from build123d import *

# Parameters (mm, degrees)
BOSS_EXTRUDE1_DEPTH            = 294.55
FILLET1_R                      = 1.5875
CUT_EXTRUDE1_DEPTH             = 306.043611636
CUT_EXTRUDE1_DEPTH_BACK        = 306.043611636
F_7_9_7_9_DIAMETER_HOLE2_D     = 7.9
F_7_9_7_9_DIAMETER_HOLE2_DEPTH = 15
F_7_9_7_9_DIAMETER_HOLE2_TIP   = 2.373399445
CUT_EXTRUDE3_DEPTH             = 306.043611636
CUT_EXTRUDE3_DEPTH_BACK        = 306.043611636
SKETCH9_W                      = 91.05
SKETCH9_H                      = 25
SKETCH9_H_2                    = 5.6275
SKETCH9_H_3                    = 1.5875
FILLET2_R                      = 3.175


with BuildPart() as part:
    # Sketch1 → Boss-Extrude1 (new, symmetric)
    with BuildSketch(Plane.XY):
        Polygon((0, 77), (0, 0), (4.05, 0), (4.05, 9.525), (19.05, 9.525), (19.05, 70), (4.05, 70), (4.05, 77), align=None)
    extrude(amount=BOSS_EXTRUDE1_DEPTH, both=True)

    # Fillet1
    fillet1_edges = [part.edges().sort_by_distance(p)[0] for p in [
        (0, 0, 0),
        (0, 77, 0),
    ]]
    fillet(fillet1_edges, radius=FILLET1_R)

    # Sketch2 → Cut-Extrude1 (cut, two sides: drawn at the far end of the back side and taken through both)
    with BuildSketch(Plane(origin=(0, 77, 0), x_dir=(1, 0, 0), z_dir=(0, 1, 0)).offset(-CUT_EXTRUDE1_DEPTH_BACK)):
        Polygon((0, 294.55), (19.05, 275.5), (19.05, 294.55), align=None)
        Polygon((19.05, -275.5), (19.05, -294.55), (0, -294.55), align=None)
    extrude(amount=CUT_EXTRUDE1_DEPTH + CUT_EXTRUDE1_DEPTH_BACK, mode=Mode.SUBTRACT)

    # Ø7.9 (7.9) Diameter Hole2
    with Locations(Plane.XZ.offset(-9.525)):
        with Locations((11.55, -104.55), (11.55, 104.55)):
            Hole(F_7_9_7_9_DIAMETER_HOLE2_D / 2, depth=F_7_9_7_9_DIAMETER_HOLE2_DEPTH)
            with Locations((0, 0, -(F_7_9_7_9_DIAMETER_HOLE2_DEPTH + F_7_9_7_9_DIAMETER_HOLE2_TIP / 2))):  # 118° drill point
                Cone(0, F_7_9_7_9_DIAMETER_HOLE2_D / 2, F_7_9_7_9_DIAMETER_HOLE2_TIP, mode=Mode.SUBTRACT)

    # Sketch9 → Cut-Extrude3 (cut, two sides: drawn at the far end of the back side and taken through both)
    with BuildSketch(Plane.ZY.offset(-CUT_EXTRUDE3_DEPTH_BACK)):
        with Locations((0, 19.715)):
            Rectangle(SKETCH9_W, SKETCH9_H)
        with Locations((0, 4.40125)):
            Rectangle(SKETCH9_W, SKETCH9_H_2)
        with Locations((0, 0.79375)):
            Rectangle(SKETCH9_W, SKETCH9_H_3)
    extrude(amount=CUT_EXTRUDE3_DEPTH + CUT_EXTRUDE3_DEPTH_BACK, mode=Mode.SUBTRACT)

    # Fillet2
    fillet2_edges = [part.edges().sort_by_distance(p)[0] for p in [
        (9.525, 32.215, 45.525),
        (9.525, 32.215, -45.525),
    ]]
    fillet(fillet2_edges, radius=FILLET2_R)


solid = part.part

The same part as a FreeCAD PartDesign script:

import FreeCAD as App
import Part
import Sketcher

V = App.Vector
Q = App.Units.Quantity


def edges_at(feature, points):
    """Names of the edges that pass closest to the given points."""
    edges = feature.Shape.Edges
    near = lambda p: min(range(len(edges)), key=lambda i: edges[i].distToShape(Part.Vertex(*p))[0])
    return sorted({f"Edge{near(p) + 1}" for p in points})


def add_polygon(sketch, points):
    """Adds a closed chain of lines whose ends are joined by coincident constraints."""
    first, n = sketch.GeometryCount, len(points)
    for a, b in zip(points, points[1:] + points[:1]):
        sketch.addGeometry(Part.LineSegment(App.Vector(*a, 0), App.Vector(*b, 0)), False)
    for i in range(n):
        sketch.addConstraint(Sketcher.Constraint("Coincident", first + i, 2, first + (i + 1) % n, 1))

doc = App.newDocument("Part")
body = doc.addObject("PartDesign::Body", "Body")

sketch1 = body.newObject("Sketcher::SketchObject", "Sketch")
sketch1.AttachmentSupport = (doc.getObject("XY_Plane"), [""])
sketch1.MapMode = "FlatFace"
add_polygon(sketch1, [(0, 77), (0, 0), (4, 0), (4, 9.5), (19.1, 9.5), (19.1, 70), (4, 70), (4, 77)])
sketch1.addConstraint([
    Sketcher.Constraint("Vertical", 0),
    Sketcher.Constraint("Horizontal", 1),
    Sketcher.Constraint("Vertical", 2),
    Sketcher.Constraint("Horizontal", 3),
    Sketcher.Constraint("Vertical", 4),
    Sketcher.Constraint("Horizontal", 5),
    Sketcher.Constraint("Vertical", 6),
    Sketcher.Constraint("Horizontal", 7),
    Sketcher.Constraint("Coincident", 0, 2, -1, 1),
    Sketcher.Constraint("Vertical", 2, 2, 5, 2),
    Sketcher.Constraint("DistanceX", 3, 1, 3, 2, Q("15 mm")),
    Sketcher.Constraint("DistanceY", 0, 2, 0, 1, Q("77 mm")),
    Sketcher.Constraint("DistanceY", 6, 1, 6, 2, Q("7 mm")),
    Sketcher.Constraint("DistanceX", 1, 1, 1, 2, Q("4.05 mm")),
    Sketcher.Constraint("DistanceY", 2, 1, 2, 2, Q("9.525 mm")),
])
pad1 = body.newObject("PartDesign::Pad", "Pad")
pad1.Profile = sketch1
pad1.Length = 589.1
pad1.Midplane = True
doc.recompute()

fillet = body.newObject("PartDesign::Fillet", "Fillet")
fillet.Base = (pad1, edges_at(pad1, [(0, 0, 0), (0, 77, 0)]))
fillet.Radius = 1.5875

sketch2 = body.newObject("Sketcher::SketchObject", "Sketch001")
sketch2.AttachmentSupport = (doc.getObject("XZ_Plane"), [""])
sketch2.MapMode = "FlatFace"
sketch2.AttachmentOffset = App.Placement(V(0, 0, -77), App.Rotation())
add_polygon(sketch2, [(0, -295), (19, -276), (19, -295)])
add_polygon(sketch2, [(19, 295), (19, 276), (0, 295)])
sketch2.addConstraint([
    Sketcher.Constraint("Vertical", 1),
    Sketcher.Constraint("Horizontal", 2),
    Sketcher.Constraint("Vertical", 3),
    Sketcher.Constraint("Horizontal", 5),
    Sketcher.Constraint("Symmetric", 2, 2, 4, 2, -1, 1),
    Sketcher.Constraint("Symmetric", 0, 2, 3, 2, -1),
    Sketcher.Constraint("PointOnObject", 2, 2, -2),
    Sketcher.Constraint("Perpendicular", 0, 4),
    Sketcher.Constraint("DistanceY", 0, 2, 3, 2, Q("551 mm")),
    Sketcher.Constraint("DistanceX", 2, 2, 2, 1, Q("19.05 mm")),
])
pocket1 = body.newObject("PartDesign::Pocket", "Pocket")
pocket1.Profile = sketch2
pocket1.Type = "ThroughAll"
pocket1.Midplane = True

sketch3 = body.newObject("Sketcher::SketchObject", "Sketch002")
sketch3.AttachmentSupport = (doc.getObject("XZ_Plane"), [""])
sketch3.MapMode = "FlatFace"
sketch3.AttachmentOffset = App.Placement(V(0, 0, -9.525), App.Rotation())
sketch3.addGeometry([
    Part.Circle(V(11.6, -104.5, 0), V(0, 0, 1), 4),
    Part.Circle(V(11.6, 104.5, 0), V(0, 0, 1), 4),
], False)
sketch3.addConstraint([
    Sketcher.Constraint("Equal", 0, 1),
    Sketcher.Constraint("Symmetric", 0, 3, 1, 3, -1),
    Sketcher.Constraint("Diameter", 0, Q("7.9 mm")),
    Sketcher.Constraint("DistanceY", 0, 3, 1, 3, Q("209.1 mm")),
    Sketcher.Constraint("DistanceX", -1, 1, 0, 3, Q("11.55 mm")),
])
doc.recompute()
hole = body.newObject("PartDesign::Hole", "Hole")
hole.Profile = sketch3
hole.ThreadType = "None"
hole.Diameter = 7.9
hole.DepthType = "Dimension"
hole.Depth = 15
hole.DrillPoint = "Angled"
hole.DrillPointAngle = 118

sketch4 = body.newObject("Sketcher::SketchObject", "Sketch003")
sketch4.AttachmentSupport = (doc.getObject("YZ_Plane"), [""])
sketch4.MapMode = "FlatFace"
add_polygon(sketch4, [(32, -46), (0, -46), (0, 46), (32, 46)])
sketch4.addConstraint([
    Sketcher.Constraint("Horizontal", 0),
    Sketcher.Constraint("Vertical", 1),
    Sketcher.Constraint("Horizontal", 2),
    Sketcher.Constraint("Vertical", 3),
    Sketcher.Constraint("Symmetric", 0, 2, 1, 2, -1, 1),
    Sketcher.Constraint("DistanceY", 1, 1, 1, 2, Q("91.05 mm")),
    Sketcher.Constraint("DistanceX", 0, 2, 0, 1, Q("32.215 mm")),
])
pocket2 = body.newObject("PartDesign::Pocket", "Pocket001")
pocket2.Profile = sketch4
pocket2.Type = "ThroughAll"
pocket2.Midplane = True
doc.recompute()

fillet2 = body.newObject("PartDesign::Fillet", "Fillet001")
fillet2.Base = (pocket2, edges_at(pocket2, [(9.525, 32.215, 45.525), (9.525, 32.215, -45.525)]))
fillet2.Radius = 3.175

doc.recompute()
